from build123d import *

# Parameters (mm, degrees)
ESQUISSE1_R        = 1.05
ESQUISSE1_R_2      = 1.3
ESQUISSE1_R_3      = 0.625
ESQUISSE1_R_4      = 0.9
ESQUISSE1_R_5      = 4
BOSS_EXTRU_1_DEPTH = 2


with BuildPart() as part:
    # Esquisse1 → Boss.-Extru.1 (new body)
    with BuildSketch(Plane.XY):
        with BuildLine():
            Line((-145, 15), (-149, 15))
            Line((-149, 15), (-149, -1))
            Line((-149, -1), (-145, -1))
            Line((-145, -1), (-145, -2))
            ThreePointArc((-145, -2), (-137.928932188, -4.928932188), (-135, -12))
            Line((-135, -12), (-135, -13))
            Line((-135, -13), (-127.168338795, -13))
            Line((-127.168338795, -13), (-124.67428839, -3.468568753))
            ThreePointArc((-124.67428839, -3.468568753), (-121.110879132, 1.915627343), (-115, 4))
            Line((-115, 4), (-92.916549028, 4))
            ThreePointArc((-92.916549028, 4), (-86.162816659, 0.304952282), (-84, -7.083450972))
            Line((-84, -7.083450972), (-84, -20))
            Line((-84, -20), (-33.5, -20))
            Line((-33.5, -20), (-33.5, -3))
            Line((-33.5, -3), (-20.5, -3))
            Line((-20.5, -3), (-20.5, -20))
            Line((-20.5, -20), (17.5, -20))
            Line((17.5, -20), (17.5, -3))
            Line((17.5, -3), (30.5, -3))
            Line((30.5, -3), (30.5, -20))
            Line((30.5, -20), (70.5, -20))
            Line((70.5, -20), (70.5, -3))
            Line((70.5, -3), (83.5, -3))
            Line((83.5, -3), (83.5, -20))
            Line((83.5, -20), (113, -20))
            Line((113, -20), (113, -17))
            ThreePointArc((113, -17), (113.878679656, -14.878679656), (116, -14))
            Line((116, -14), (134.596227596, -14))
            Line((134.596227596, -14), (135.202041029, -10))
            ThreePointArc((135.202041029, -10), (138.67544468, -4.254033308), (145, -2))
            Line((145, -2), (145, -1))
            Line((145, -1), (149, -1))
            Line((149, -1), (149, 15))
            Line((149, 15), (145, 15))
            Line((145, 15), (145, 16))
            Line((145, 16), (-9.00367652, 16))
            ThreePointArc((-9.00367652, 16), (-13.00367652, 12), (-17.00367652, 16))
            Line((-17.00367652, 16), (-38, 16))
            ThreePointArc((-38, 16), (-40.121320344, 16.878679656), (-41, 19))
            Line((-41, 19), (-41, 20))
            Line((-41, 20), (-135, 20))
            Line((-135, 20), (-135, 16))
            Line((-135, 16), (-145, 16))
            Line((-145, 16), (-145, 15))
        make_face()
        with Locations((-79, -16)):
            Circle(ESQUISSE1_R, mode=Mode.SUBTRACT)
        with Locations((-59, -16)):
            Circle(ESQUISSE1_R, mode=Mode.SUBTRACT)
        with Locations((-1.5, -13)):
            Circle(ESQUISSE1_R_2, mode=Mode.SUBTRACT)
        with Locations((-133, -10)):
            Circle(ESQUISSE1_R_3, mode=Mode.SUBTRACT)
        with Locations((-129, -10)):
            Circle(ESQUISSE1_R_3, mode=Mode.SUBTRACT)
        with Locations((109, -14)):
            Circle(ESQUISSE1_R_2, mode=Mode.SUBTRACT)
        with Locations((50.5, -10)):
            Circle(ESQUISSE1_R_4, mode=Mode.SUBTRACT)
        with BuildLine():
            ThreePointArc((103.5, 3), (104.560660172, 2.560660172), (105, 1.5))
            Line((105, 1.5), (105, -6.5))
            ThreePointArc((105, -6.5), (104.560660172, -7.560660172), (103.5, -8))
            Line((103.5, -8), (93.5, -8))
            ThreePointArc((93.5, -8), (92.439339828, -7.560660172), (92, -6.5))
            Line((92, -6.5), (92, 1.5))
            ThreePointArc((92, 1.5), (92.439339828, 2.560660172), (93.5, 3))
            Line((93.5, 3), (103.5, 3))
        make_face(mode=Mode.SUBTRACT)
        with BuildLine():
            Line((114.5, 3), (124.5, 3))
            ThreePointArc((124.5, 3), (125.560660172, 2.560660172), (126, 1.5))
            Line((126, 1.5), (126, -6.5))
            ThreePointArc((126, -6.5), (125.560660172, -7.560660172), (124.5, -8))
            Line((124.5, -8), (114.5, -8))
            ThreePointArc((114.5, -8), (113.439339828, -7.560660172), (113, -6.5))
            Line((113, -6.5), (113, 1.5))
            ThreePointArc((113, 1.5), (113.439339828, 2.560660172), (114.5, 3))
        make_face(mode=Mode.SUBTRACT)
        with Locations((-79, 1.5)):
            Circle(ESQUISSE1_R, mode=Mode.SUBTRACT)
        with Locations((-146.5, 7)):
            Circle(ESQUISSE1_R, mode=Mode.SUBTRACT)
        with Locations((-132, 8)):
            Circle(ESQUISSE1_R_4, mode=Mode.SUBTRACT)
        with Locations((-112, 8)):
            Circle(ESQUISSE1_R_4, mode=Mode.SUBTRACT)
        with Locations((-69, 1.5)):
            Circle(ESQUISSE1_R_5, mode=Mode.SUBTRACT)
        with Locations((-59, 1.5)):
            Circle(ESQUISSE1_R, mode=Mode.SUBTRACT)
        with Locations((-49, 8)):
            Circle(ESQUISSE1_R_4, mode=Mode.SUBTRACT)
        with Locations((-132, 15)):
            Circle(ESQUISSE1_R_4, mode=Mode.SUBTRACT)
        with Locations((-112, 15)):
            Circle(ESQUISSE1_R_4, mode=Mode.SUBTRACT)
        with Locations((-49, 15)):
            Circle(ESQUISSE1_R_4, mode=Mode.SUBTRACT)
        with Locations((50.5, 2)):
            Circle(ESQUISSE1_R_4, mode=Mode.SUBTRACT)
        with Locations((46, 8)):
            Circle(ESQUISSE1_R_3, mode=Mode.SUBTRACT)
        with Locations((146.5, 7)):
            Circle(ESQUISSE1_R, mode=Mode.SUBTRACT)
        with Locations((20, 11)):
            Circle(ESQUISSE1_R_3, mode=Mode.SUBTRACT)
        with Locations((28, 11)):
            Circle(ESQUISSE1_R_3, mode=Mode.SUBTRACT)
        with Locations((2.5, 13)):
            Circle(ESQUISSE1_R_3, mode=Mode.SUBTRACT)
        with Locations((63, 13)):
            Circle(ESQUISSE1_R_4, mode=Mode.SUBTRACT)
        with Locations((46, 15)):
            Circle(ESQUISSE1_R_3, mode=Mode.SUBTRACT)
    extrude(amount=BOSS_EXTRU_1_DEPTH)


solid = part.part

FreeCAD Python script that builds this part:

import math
import FreeCAD as App
import Part
import Sketcher
from FreeCAD import Vector

doc = App.newDocument("Part")
body = doc.addObject("PartDesign::Body", "Body")

# Sketch on XY plane
sketch1 = body.newObject("Sketcher::SketchObject", "Sketch")
sketch1.AttachmentSupport = (doc.getObject("XY_Plane"), [""])
sketch1.MapMode = "FlatFace"
sketch1.addGeometry([
    Part.LineSegment(Vector(-145, 15, 0), Vector(-149, 15, 0)),  # 0
    Part.LineSegment(Vector(-149, 15, 0), Vector(-149, -1, 0)),  # 1
    Part.LineSegment(Vector(-149, -1, 0), Vector(-145, -1, 0)),  # 2
    Part.LineSegment(Vector(-145, -1, 0), Vector(-145, -2, 0)),  # 3
    Part.ArcOfCircle(Part.Circle(Vector(-145, -12, 0), Vector(0, 0, 1), 10), math.radians(0), math.radians(90)),  # 4
    Part.LineSegment(Vector(-135, -12, 0), Vector(-135, -13, 0)),  # 5
    Part.LineSegment(Vector(-135, -13, 0), Vector(-127.168339, -13, 0)),  # 6
    Part.LineSegment(Vector(-127.168339, -13, 0), Vector(-124.674288, -3.468569, 0)),  # 7
    Part.ArcOfCircle(Part.Circle(Vector(-115, -6, 0), Vector(0, 0, 1), 10), math.radians(90), math.radians(165.336416)),  # 8
    Part.LineSegment(Vector(-115, 4, 0), Vector(-92.916549, 4, 0)),  # 9
    Part.ArcOfCircle(Part.Circle(Vector(-94, -6, 0), Vector(0, 0, 1), 10.058522), math.radians(-6.183596), math.radians(83.816404)),  # 10
    Part.LineSegment(Vector(-84, -7.083451, 0), Vector(-84, -20, 0)),  # 11
    Part.LineSegment(Vector(-84, -20, 0), Vector(-33.5, -20, 0)),  # 12
    Part.LineSegment(Vector(-33.5, -20, 0), Vector(-33.5, -3, 0)),  # 13
    Part.LineSegment(Vector(-33.5, -3, 0), Vector(-20.5, -3, 0)),  # 14
    Part.LineSegment(Vector(-20.5, -3, 0), Vector(-20.5, -20, 0)),  # 15
    Part.LineSegment(Vector(-20.5, -20, 0), Vector(17.5, -20, 0)),  # 16
    Part.LineSegment(Vector(17.5, -20, 0), Vector(17.5, -3, 0)),  # 17
    Part.LineSegment(Vector(17.5, -3, 0), Vector(30.5, -3, 0)),  # 18
    Part.LineSegment(Vector(30.5, -3, 0), Vector(30.5, -20, 0)),  # 19
    Part.LineSegment(Vector(30.5, -20, 0), Vector(70.5, -20, 0)),  # 20
    Part.LineSegment(Vector(70.5, -20, 0), Vector(70.5, -3, 0)),  # 21
    Part.LineSegment(Vector(70.5, -3, 0), Vector(83.5, -3, 0)),  # 22
    Part.LineSegment(Vector(83.5, -3, 0), Vector(83.5, -20, 0)),  # 23
    Part.LineSegment(Vector(83.5, -20, 0), Vector(113, -20, 0)),  # 24
    Part.LineSegment(Vector(113, -20, 0), Vector(113, -17, 0)),  # 25
    Part.ArcOfCircle(Part.Circle(Vector(116, -17, 0), Vector(0, 0, 1), 3), math.radians(90), math.radians(180)),  # 26
    Part.LineSegment(Vector(116, -14, 0), Vector(134.596228, -14, 0)),  # 27
    Part.LineSegment(Vector(134.596228, -14, 0), Vector(135.202041, -10, 0)),  # 28
    Part.ArcOfCircle(Part.Circle(Vector(145, -12, 0), Vector(0, 0, 1), 10), math.radians(90), math.radians(168.463041)),  # 29
    Part.LineSegment(Vector(145, -2, 0), Vector(145, -1, 0)),  # 30
    Part.LineSegment(Vector(145, -1, 0), Vector(149, -1, 0)),  # 31
    Part.LineSegment(Vector(149, -1, 0), Vector(149, 15, 0)),  # 32
    Part.LineSegment(Vector(149, 15, 0), Vector(145, 15, 0)),  # 33
    Part.LineSegment(Vector(145, 15, 0), Vector(145, 16, 0)),  # 34
    Part.LineSegment(Vector(145, 16, 0), Vector(-9.003677, 16, 0)),  # 35
    Part.ArcOfCircle(Part.Circle(Vector(-13.003677, 16, 0), Vector(0, 0, 1), 4), math.radians(180), math.radians(360)),  # 36
    Part.LineSegment(Vector(-17.003677, 16, 0), Vector(-38, 16, 0)),  # 37
    Part.ArcOfCircle(Part.Circle(Vector(-38, 19, 0), Vector(0, 0, 1), 3), math.radians(180), math.radians(270)),  # 38
    Part.LineSegment(Vector(-41, 19, 0), Vector(-41, 20, 0)),  # 39
    Part.LineSegment(Vector(-41, 20, 0), Vector(-135, 20, 0)),  # 40
    Part.LineSegment(Vector(-135, 20, 0), Vector(-135, 16, 0)),  # 41
    Part.LineSegment(Vector(-135, 16, 0), Vector(-145, 16, 0)),  # 42
    Part.LineSegment(Vector(-145, 16, 0), Vector(-145, 15, 0)),  # 43
    Part.Circle(Vector(-79, -16, 0), Vector(0, 0, 1), 1.05),  # 44
    Part.Circle(Vector(-133, -10, 0), Vector(0, 0, 1), 0.625),  # 45
    Part.Circle(Vector(-129, -10, 0), Vector(0, 0, 1), 0.625),  # 46
    Part.Circle(Vector(-59, -16, 0), Vector(0, 0, 1), 1.05),  # 47
    Part.Circle(Vector(-1.5, -13, 0), Vector(0, 0, 1), 1.3),  # 48
    Part.Circle(Vector(50.5, -10, 0), Vector(0, 0, 1), 0.9),  # 49
    Part.Circle(Vector(109, -14, 0), Vector(0, 0, 1), 1.3),  # 50
    Part.LineSegment(Vector(93.5, 3, 0), Vector(103.5, 3, 0)),  # 51
    Part.ArcOfCircle(Part.Circle(Vector(103.5, 1.5, 0), Vector(0, 0, 1), 1.5), math.radians(0), math.radians(90)),  # 52
    Part.LineSegment(Vector(105, 1.5, 0), Vector(105, -6.5, 0)),  # 53
    Part.ArcOfCircle(Part.Circle(Vector(103.5, -6.5, 0), Vector(0, 0, 1), 1.5), math.radians(-90), math.radians(0)),  # 54
    Part.LineSegment(Vector(103.5, -8, 0), Vector(93.5, -8, 0)),  # 55
    Part.ArcOfCircle(Part.Circle(Vector(93.5, -6.5, 0), Vector(0, 0, 1), 1.5), math.radians(180), math.radians(270)),  # 56
    Part.LineSegment(Vector(92, -6.5, 0), Vector(92, 1.5, 0)),  # 57
    Part.ArcOfCircle(Part.Circle(Vector(93.5, 1.5, 0), Vector(0, 0, 1), 1.5), math.radians(90), math.radians(180)),  # 58
    Part.ArcOfCircle(Part.Circle(Vector(114.5, 1.5, 0), Vector(0, 0, 1), 1.5), math.radians(90), math.radians(180)),  # 59
    Part.LineSegment(Vector(114.5, 3, 0), Vector(124.5, 3, 0)),  # 60
    Part.ArcOfCircle(Part.Circle(Vector(124.5, 1.5, 0), Vector(0, 0, 1), 1.5), math.radians(0), math.radians(90)),  # 61
    Part.LineSegment(Vector(126, 1.5, 0), Vector(126, -6.5, 0)),  # 62
    Part.ArcOfCircle(Part.Circle(Vector(124.5, -6.5, 0), Vector(0, 0, 1), 1.5), math.radians(-90), math.radians(0)),  # 63
    Part.LineSegment(Vector(124.5, -8, 0), Vector(114.5, -8, 0)),  # 64
    Part.ArcOfCircle(Part.Circle(Vector(114.5, -6.5, 0), Vector(0, 0, 1), 1.5), math.radians(180), math.radians(270)),  # 65
    Part.LineSegment(Vector(113, -6.5, 0), Vector(113, 1.5, 0)),  # 66
    Part.Circle(Vector(-79, 1.5, 0), Vector(0, 0, 1), 1.05),  # 67
    Part.Circle(Vector(-146.5, 7, 0), Vector(0, 0, 1), 1.05),  # 68
    Part.Circle(Vector(-69, 1.5, 0), Vector(0, 0, 1), 4),  # 69
    Part.Circle(Vector(-59, 1.5, 0), Vector(0, 0, 1), 1.05),  # 70
    Part.Circle(Vector(-132, 8, 0), Vector(0, 0, 1), 0.9),  # 71
    Part.Circle(Vector(-112, 8, 0), Vector(0, 0, 1), 0.9),  # 72
    Part.Circle(Vector(-132, 15, 0), Vector(0, 0, 1), 0.9),  # 73
    Part.Circle(Vector(-112, 15, 0), Vector(0, 0, 1), 0.9),  # 74
    Part.Circle(Vector(-49, 8, 0), Vector(0, 0, 1), 0.9),  # 75
    Part.Circle(Vector(-49, 15, 0), Vector(0, 0, 1), 0.9),  # 76
    Part.Circle(Vector(50.5, 2, 0), Vector(0, 0, 1), 0.9),  # 77
    Part.Circle(Vector(146.5, 7, 0), Vector(0, 0, 1), 1.05),  # 78
    Part.Circle(Vector(20, 11, 0), Vector(0, 0, 1), 0.625),  # 79
    Part.Circle(Vector(28, 11, 0), Vector(0, 0, 1), 0.625),  # 80
    Part.Circle(Vector(46, 8, 0), Vector(0, 0, 1), 0.625),  # 81
    Part.Circle(Vector(2.5, 13, 0), Vector(0, 0, 1), 0.625),  # 82
    Part.Circle(Vector(63, 13, 0), Vector(0, 0, 1), 0.9),  # 83
    Part.Circle(Vector(46, 15, 0), Vector(0, 0, 1), 0.625),  # 84
], False)
sketch1.addConstraint([
    Sketcher.Constraint("Coincident", 0, 2, 1, 1),
    Sketcher.Constraint("Coincident", 1, 2, 2, 1),
    Sketcher.Constraint("Coincident", 2, 2, 3, 1),
    Sketcher.Constraint("Coincident", 3, 2, 4, 2),
    Sketcher.Constraint("Tangent", 4, 1, 5, 1),
    Sketcher.Constraint("Coincident", 5, 2, 6, 1),
    Sketcher.Constraint("Coincident", 6, 2, 7, 1),
    Sketcher.Constraint("Tangent", 7, 2, 8, 2),
    Sketcher.Constraint("Tangent", 8, 1, 9, 1),
    Sketcher.Constraint("Coincident", 9, 2, 10, 2),
    Sketcher.Constraint("Coincident", 10, 1, 11, 1),
    Sketcher.Constraint("Coincident", 11, 2, 12, 1),
    Sketcher.Constraint("Coincident", 12, 2, 13, 1),
    Sketcher.Constraint("Coincident", 13, 2, 14, 1),
    Sketcher.Constraint("Coincident", 14, 2, 15, 1),
    Sketcher.Constraint("Coincident", 15, 2, 16, 1),
    Sketcher.Constraint("Coincident", 16, 2, 17, 1),
    Sketcher.Constraint("Coincident", 17, 2, 18, 1),
    Sketcher.Constraint("Coincident", 18, 2, 19, 1),
    Sketcher.Constraint("Coincident", 19, 2, 20, 1),
    Sketcher.Constraint("Coincident", 20, 2, 21, 1),
    Sketcher.Constraint("Coincident", 21, 2, 22, 1),
    Sketcher.Constraint("Coincident", 22, 2, 23, 1),
    Sketcher.Constraint("Coincident", 23, 2, 24, 1),
    Sketcher.Constraint("Coincident", 24, 2, 25, 1),
    Sketcher.Constraint("Tangent", 25, 2, 26, 2),
    Sketcher.Constraint("Tangent", 26, 1, 27, 1),
    Sketcher.Constraint("Coincident", 27, 2, 28, 1),
    Sketcher.Constraint("Coincident", 28, 2, 29, 2),
    Sketcher.Constraint("Coincident", 29, 1, 30, 1),
    Sketcher.Constraint("Coincident", 30, 2, 31, 1),
    Sketcher.Constraint("Coincident", 31, 2, 32, 1),
    Sketcher.Constraint("Coincident", 32, 2, 33, 1),
    Sketcher.Constraint("Coincident", 33, 2, 34, 1),
    Sketcher.Constraint("Coincident", 34, 2, 35, 1),
    Sketcher.Constraint("Coincident", 35, 2, 36, 2),
    Sketcher.Constraint("Coincident", 36, 1, 37, 1),
    Sketcher.Constraint("Tangent", 37, 2, 38, 2),
    Sketcher.Constraint("Tangent", 38, 1, 39, 1),
    Sketcher.Constraint("Coincident", 39, 2, 40, 1),
    Sketcher.Constraint("Coincident", 40, 2, 41, 1),
    Sketcher.Constraint("Coincident", 41, 2, 42, 1),
    Sketcher.Constraint("Coincident", 42, 2, 43, 1),
    Sketcher.Constraint("Coincident", 43, 2, 0, 1),
    Sketcher.Constraint("Tangent", 51, 2, 52, 2),
    Sketcher.Constraint("Tangent", 52, 1, 53, 1),
    Sketcher.Constraint("Tangent", 53, 2, 54, 2),
    Sketcher.Constraint("Tangent", 54, 1, 55, 1),
    Sketcher.Constraint("Tangent", 55, 2, 56, 2),
    Sketcher.Constraint("Tangent", 56, 1, 57, 1),
    Sketcher.Constraint("Tangent", 57, 2, 58, 2),
    Sketcher.Constraint("Tangent", 58, 1, 51, 1),
    Sketcher.Constraint("Tangent", 59, 1, 60, 1),
    Sketcher.Constraint("Tangent", 60, 2, 61, 2),
    Sketcher.Constraint("Tangent", 61, 1, 62, 1),
    Sketcher.Constraint("Tangent", 62, 2, 63, 2),
    Sketcher.Constraint("Tangent", 63, 1, 64, 1),
    Sketcher.Constraint("Tangent", 64, 2, 65, 2),
    Sketcher.Constraint("Tangent", 65, 1, 66, 1),
    Sketcher.Constraint("Tangent", 66, 2, 59, 2),
    Sketcher.Constraint("Horizontal", 0),
    Sketcher.Constraint("Vertical", 1),
    Sketcher.Constraint("Horizontal", 2),
    Sketcher.Constraint("Vertical", 3),
    Sketcher.Constraint("Vertical", 5),
    Sketcher.Constraint("Horizontal", 6),
    Sketcher.Constraint("Horizontal", 9),
    Sketcher.Constraint("Vertical", 11),
    Sketcher.Constraint("Horizontal", 12),
    Sketcher.Constraint("Vertical", 13),
    Sketcher.Constraint("Horizontal", 14),
    Sketcher.Constraint("Vertical", 15),
    Sketcher.Constraint("Horizontal", 16),
    Sketcher.Constraint("Vertical", 17),
    Sketcher.Constraint("Horizontal", 18),
    Sketcher.Constraint("Vertical", 19),
    Sketcher.Constraint("Horizontal", 20),
    Sketcher.Constraint("Vertical", 21),
    Sketcher.Constraint("Horizontal", 22),
    Sketcher.Constraint("Vertical", 23),
    Sketcher.Constraint("Horizontal", 24),
    Sketcher.Constraint("Vertical", 25),
    Sketcher.Constraint("Horizontal", 27),
    Sketcher.Constraint("Vertical", 30),
    Sketcher.Constraint("Horizontal", 31),
    Sketcher.Constraint("Vertical", 32),
    Sketcher.Constraint("Horizontal", 33),
    Sketcher.Constraint("Vertical", 34),
    Sketcher.Constraint("Horizontal", 35),
    Sketcher.Constraint("Horizontal", 37),
    Sketcher.Constraint("Vertical", 39),
    Sketcher.Constraint("Horizontal", 40),
    Sketcher.Constraint("Vertical", 41),
    Sketcher.Constraint("Horizontal", 42),
    Sketcher.Constraint("Vertical", 43),
    Sketcher.Constraint("Horizontal", 51),
    Sketcher.Constraint("Vertical", 53),
    Sketcher.Constraint("Horizontal", 55),
    Sketcher.Constraint("Vertical", 57),
    Sketcher.Constraint("Horizontal", 60),
    Sketcher.Constraint("Vertical", 62),
    Sketcher.Constraint("Horizontal", 64),
    Sketcher.Constraint("Vertical", 66),
    Sketcher.Constraint("Equal", 4, 8),
    Sketcher.Constraint("Equal", 8, 29),
    Sketcher.Constraint("Equal", 26, 38),
    Sketcher.Constraint("Equal", 45, 46),
    Sketcher.Constraint("Equal", 44, 47),
    Sketcher.Constraint("Equal", 48, 50),
    Sketcher.Constraint("Equal", 52, 54),
    Sketcher.Constraint("Equal", 54, 56),
    Sketcher.Constraint("Equal", 56, 58),
    Sketcher.Constraint("Equal", 58, 59),
    Sketcher.Constraint("Equal", 59, 61),
    Sketcher.Constraint("Equal", 61, 63),
    Sketcher.Constraint("Equal", 63, 65),
    Sketcher.Constraint("Equal", 47, 67),
    Sketcher.Constraint("Equal", 67, 68),
    Sketcher.Constraint("Equal", 36, 69),
    Sketcher.Constraint("Equal", 68, 70),
    Sketcher.Constraint("Equal", 49, 71),
    Sketcher.Constraint("Equal", 71, 72),
    Sketcher.Constraint("Equal", 72, 73),
    Sketcher.Constraint("Equal", 73, 74),
    Sketcher.Constraint("Equal", 74, 75),
    Sketcher.Constraint("Equal", 75, 76),
    Sketcher.Constraint("Equal", 76, 77),
    Sketcher.Constraint("Equal", 70, 78),
    Sketcher.Constraint("Equal", 46, 79),
    Sketcher.Constraint("Equal", 79, 80),
    Sketcher.Constraint("Equal", 80, 81),
    Sketcher.Constraint("Equal", 81, 82),
    Sketcher.Constraint("Equal", 77, 83),
    Sketcher.Constraint("Equal", 82, 84),
    Sketcher.Constraint("Symmetric", 4, 3, 29, 3, -2),
    Sketcher.Constraint("Symmetric", 68, 3, 78, 3, -2),
    Sketcher.Constraint("Symmetric", 2, 2, 30, 2, -2),
    Sketcher.Constraint("Symmetric", 0, 2, 32, 2, -2),
    Sketcher.Constraint("Symmetric", 34, 2, 42, 2, -2),
    Sketcher.Constraint("Horizontal", 8, 3, 10, 3),
    Sketcher.Constraint("Horizontal", 45, 3, 46, 3),
    Sketcher.Constraint("Horizontal", 44, 3, 47, 3),
    Sketcher.Constraint("Horizontal", 46, 3, 49, 3),
    Sketcher.Constraint("Horizontal", 58, 3, 59, 3),
    Sketcher.Constraint("Horizontal", 56, 3, 63, 3),
    Sketcher.Constraint("Horizontal", 61, 3, 67, 3),
    Sketcher.Constraint("Horizontal", 67, 3, 69, 3),
    Sketcher.Constraint("Horizontal", 69, 3, 70, 3),
    Sketcher.Constraint("Horizontal", 71, 3, 72, 3),
    Sketcher.Constraint("Horizontal", 73, 3, 74, 3),
    Sketcher.Constraint("Horizontal", 72, 3, 75, 3),
    Sketcher.Constraint("Horizontal", 74, 3, 76, 3),
    Sketcher.Constraint("Horizontal", 79, 3, 80, 3),
    Sketcher.Constraint("Horizontal", 75, 3, 81, 3),
    Sketcher.Constraint("Horizontal", 82, 3, 83, 3),
    Sketcher.Constraint("Horizontal", 76, 3, 84, 3),
    Sketcher.Constraint("Horizontal", 84, 3, 0, 2),
    Sketcher.Constraint("Horizontal", 48, 3, 5, 2),
    Sketcher.Constraint("Horizontal", 12, 2, 15, 2),
    Sketcher.Constraint("Horizontal", 14, 2, 17, 2),
    Sketcher.Constraint("Horizontal", 16, 2, 19, 2),
    Sketcher.Constraint("Horizontal", 18, 2, 21, 2),
    Sketcher.Constraint("Horizontal", 20, 2, 23, 2),
    Sketcher.Constraint("Horizontal", 50, 3, 26, 1),
    Sketcher.Constraint("Horizontal", 49, 3, 28, 2),
    Sketcher.Constraint("Horizontal", 36, 3, 34, 2),
    Sketcher.Constraint("Horizontal", 35, 2, 36, 1),
    Sketcher.Constraint("Vertical", 44, 3, 67, 3),
    Sketcher.Constraint("Vertical", 47, 3, 70, 3),
    Sketcher.Constraint("Vertical", 71, 3, 73, 3),
    Sketcher.Constraint("Vertical", 72, 3, 74, 3),
    Sketcher.Constraint("Vertical", 75, 3, 76, 3),
    Sketcher.Constraint("Vertical", 49, 3, 77, 3),
    Sketcher.Constraint("Vertical", 81, 3, 84, 3),
    Sketcher.Constraint("Vertical", 4, 3, 2, 2),
    Sketcher.Constraint("Vertical", 30, 2, 33, 2),
    Sketcher.Constraint("Vertical", 5, 2, 40, 2),
    Sketcher.Constraint("Vertical", 25, 2, 65, 1),
    Sketcher.Constraint("Equal", 14, 18),
    Sketcher.Constraint("Equal", 18, 22),
    Sketcher.Constraint("Equal", 42, 51),
    Sketcher.Constraint("Equal", 55, 60),
    Sketcher.Constraint("Equal", 3, 5),
    Sketcher.Constraint("Equal", 30, 34),
    Sketcher.Constraint("Equal", 34, 39),
    Sketcher.Constraint("Equal", 33, 41),
    Sketcher.Constraint("Diameter", 69, 8.0),
    Sketcher.Constraint("Radius", 4, 10.0),
    Sketcher.Constraint("Radius", 26, 3.0),
    Sketcher.Constraint("Diameter", 44, 2.1),
    Sketcher.Constraint("Diameter", 48, 2.6),
    Sketcher.Constraint("Diameter", 49, 1.8),
    Sketcher.Constraint("Radius", 52, 1.5),
    Sketcher.Constraint("Diameter", 45, 1.25),
    Sketcher.Constraint("DistanceX", 0, 2, 0, 1, 4.0),
    Sketcher.Constraint("DistanceX", 14, 1, 14, 2, 13.0),
    Sketcher.Constraint("DistanceX", 16, 1, 16, 2, 38.0),
    Sketcher.Constraint("DistanceX", 20, 1, 20, 2, 40.0),
    Sketcher.Constraint("DistanceX", 40, 2, 40, 1, 94.0),
    Sketcher.Constraint("DistanceY", 1, 2, 1, 1, 16.0),
    Sketcher.Constraint("DistanceY", 13, 1, 13, 2, 17.0),
    Sketcher.Constraint("DistanceY", 25, 1, 25, 2, 3.0),
    Sketcher.Constraint("DistanceY", 53, 2, 53, 1, 8.0),
    Sketcher.Constraint("DistanceX", 12, 1, 12, 2, 50.5),
    Sketcher.Constraint("DistanceX", 24, 1, 24, 2, 29.5),
    Sketcher.Constraint("DistanceX", 4, 3, -1, 1, 145.0),
    Sketcher.Constraint("DistanceY", 4, 3, -1, 1, 12.0),
    Sketcher.Constraint("DistanceX", 8, 3, -1, 1, 115.0),
    Sketcher.Constraint("DistanceY", 8, 3, -1, 1, 6.0),
    Sketcher.Constraint("DistanceX", 10, 3, -1, 1, 94.0),
    Sketcher.Constraint("DistanceX", -1, 1, 26, 3, 116.0),
    Sketcher.Constraint("DistanceY", 26, 3, -1, 1, 17.0),
    Sketcher.Constraint("DistanceX", 44, 3, -1, 1, 79.0),
    Sketcher.Constraint("DistanceY", 44, 3, -1, 1, 16.0),
    Sketcher.Constraint("DistanceX", 45, 3, -1, 1, 133.0),
    Sketcher.Constraint("DistanceY", 45, 3, -1, 1, 10.0),
    Sketcher.Constraint("DistanceX", 46, 3, -1, 1, 129.0),
    Sketcher.Constraint("DistanceX", 47, 3, -1, 1, 59.0),
    Sketcher.Constraint("DistanceX", -1, 1, 50, 3, 109.0),
    Sketcher.Constraint("DistanceY", -1, 1, 68, 3, 7.0),
    Sketcher.Constraint("DistanceX", 69, 3, -1, 1, 69.0),
    Sketcher.Constraint("DistanceX", 71, 3, -1, 1, 132.0),
    Sketcher.Constraint("DistanceY", -1, 1, 71, 3, 8.0),
    Sketcher.Constraint("DistanceX", 72, 3, -1, 1, 112.0),
    Sketcher.Constraint("DistanceX", 75, 3, -1, 1, 49.0),
    Sketcher.Constraint("DistanceY", -1, 1, 77, 3, 2.0),
    Sketcher.Constraint("DistanceX", -1, 1, 79, 3, 20.0),
    Sketcher.Constraint("DistanceY", -1, 1, 79, 3, 11.0),
    Sketcher.Constraint("DistanceX", -1, 1, 80, 3, 28.0),
    Sketcher.Constraint("DistanceX", -1, 1, 81, 3, 46.0),
    Sketcher.Constraint("DistanceY", -1, 1, 82, 3, 13.0),
    Sketcher.Constraint("DistanceX", -1, 1, 83, 3, 63.0),
    Sketcher.Constraint("DistanceY", -1, 1, 51, 2, 3.0),
    Sketcher.Constraint("DistanceX", -1, 1, 52, 1, 105.0),
    Sketcher.Constraint("DistanceX", 48, 3, -1, 1, 1.5),
    Sketcher.Constraint("DistanceX", -1, 1, 49, 3, 50.5),
    Sketcher.Constraint("DistanceX", 68, 3, -1, 1, 146.5),
    Sketcher.Constraint("DistanceX", -1, 1, 82, 3, 2.5),
    Sketcher.Constraint("Radius", 10, 10.058522),
    Sketcher.Constraint("DistanceX", 6, 1, 6, 2, 7.831661),
    Sketcher.Constraint("DistanceX", 27, 1, 27, 2, 18.596228),
    Sketcher.Constraint("DistanceX", 35, 2, 35, 1, 154.003677),
])
pad1 = body.newObject("PartDesign::Pad", "Pad")
pad1.Profile = sketch1
pad1.Length = 2

doc.recompute()
